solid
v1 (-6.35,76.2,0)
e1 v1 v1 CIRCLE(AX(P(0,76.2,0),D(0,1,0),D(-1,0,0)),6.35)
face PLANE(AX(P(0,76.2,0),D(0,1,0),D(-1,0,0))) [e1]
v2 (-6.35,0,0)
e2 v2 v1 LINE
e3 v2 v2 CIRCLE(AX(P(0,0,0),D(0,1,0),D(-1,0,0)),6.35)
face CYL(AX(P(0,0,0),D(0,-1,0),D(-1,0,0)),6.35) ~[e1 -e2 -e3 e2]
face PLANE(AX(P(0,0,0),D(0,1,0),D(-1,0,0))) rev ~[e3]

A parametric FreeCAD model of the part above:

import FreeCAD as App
import Part
import Sketcher
Q = App.Units.Quantity

doc = App.newDocument("Part")
body = doc.addObject("PartDesign::Body", "Body")

sketch1 = body.newObject("Sketcher::SketchObject", "Sketch")
sketch1.AttachmentSupport = (doc.getObject("XZ_Plane"), [""])
sketch1.MapMode = "FlatFace"
sketch1.addGeometry(Part.Circle(App.Vector(0, 0, 0), App.Vector(0, 0, 1), 6.35), False)
sketch1.addConstraint(Sketcher.Constraint("Coincident", 0, 3, -1, 1))
sketch1.addConstraint(Sketcher.Constraint("Diameter", 0, Q("0.5 in")))
pad1 = body.newObject("PartDesign::Pad", "Pad")
pad1.Profile = sketch1
pad1.Length = Q("3 in")
pad1.Reversed = True

doc.recompute()
